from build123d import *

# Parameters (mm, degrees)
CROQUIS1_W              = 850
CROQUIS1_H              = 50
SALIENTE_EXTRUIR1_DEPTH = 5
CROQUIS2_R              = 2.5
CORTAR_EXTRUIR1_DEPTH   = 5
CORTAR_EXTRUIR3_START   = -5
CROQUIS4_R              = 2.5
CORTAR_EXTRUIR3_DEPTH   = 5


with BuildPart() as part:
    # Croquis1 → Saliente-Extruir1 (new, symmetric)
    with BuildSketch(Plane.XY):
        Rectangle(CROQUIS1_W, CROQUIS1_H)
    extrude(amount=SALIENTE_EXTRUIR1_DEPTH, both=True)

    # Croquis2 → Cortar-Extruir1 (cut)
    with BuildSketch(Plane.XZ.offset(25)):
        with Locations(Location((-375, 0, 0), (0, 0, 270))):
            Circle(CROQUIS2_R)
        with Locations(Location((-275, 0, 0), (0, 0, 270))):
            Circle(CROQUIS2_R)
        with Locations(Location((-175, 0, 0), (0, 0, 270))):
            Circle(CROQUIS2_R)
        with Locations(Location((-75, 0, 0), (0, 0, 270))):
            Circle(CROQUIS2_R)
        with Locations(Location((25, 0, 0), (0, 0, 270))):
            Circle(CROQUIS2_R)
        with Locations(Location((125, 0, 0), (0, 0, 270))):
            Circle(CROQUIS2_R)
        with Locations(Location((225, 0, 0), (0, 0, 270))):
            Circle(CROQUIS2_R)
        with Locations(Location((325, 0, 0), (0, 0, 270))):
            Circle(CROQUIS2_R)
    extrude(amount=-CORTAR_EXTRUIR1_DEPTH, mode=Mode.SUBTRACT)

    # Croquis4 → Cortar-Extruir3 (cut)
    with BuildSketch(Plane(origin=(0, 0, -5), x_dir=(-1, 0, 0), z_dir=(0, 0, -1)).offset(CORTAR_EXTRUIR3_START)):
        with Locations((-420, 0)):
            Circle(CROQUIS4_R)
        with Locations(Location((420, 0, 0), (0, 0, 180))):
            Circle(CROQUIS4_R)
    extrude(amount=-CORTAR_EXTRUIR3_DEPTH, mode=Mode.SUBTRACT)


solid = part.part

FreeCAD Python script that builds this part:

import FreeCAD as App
import Part
import Sketcher
from FreeCAD import Vector
Q = App.Units.Quantity

doc = App.newDocument("Part")
body = doc.addObject("PartDesign::Body", "Body")

sketch1 = body.newObject("Sketcher::SketchObject", "Sketch")
sketch1.AttachmentSupport = (doc.getObject("XY_Plane"), [""])
sketch1.MapMode = "FlatFace"
sketch1.addGeometry(Part.LineSegment(Vector(-425, 25, 0), Vector(-425, -25, 0)), False)
sketch1.addGeometry(Part.LineSegment(Vector(-425, -25, 0), Vector(425, -25, 0)), False)
sketch1.addGeometry(Part.LineSegment(Vector(425, -25, 0), Vector(425, 25, 0)), False)
sketch1.addGeometry(Part.LineSegment(Vector(425, 25, 0), Vector(-425, 25, 0)), False)
sketch1.addConstraint(Sketcher.Constraint("Coincident", 0, 2, 1, 1))
sketch1.addConstraint(Sketcher.Constraint("Coincident", 1, 2, 2, 1))
sketch1.addConstraint(Sketcher.Constraint("Coincident", 2, 2, 3, 1))
sketch1.addConstraint(Sketcher.Constraint("Coincident", 3, 2, 0, 1))
sketch1.addConstraint(Sketcher.Constraint("Vertical", 0))
sketch1.addConstraint(Sketcher.Constraint("Horizontal", 1))
sketch1.addConstraint(Sketcher.Constraint("Vertical", 2))
sketch1.addConstraint(Sketcher.Constraint("Horizontal", 3))
sketch1.addConstraint(Sketcher.Constraint("Symmetric", 0, 2, 2, 2, -1, 1))
sketch1.addConstraint(Sketcher.Constraint("DistanceX", 1, 1, 1, 2, Q("850 mm")))
sketch1.addConstraint(Sketcher.Constraint("DistanceY", 0, 2, 0, 1, Q("50 mm")))
pad1 = body.newObject("PartDesign::Pad", "Pad")
pad1.Profile = sketch1
pad1.Length = 10
pad1.Midplane = True

sketch2 = body.newObject("Sketcher::SketchObject", "Sketch001")
sketch2.AttachmentSupport = (doc.getObject("XZ_Plane"), [""])
sketch2.MapMode = "FlatFace"
sketch2.AttachmentOffset = App.Placement(Vector(0, 0, 25), App.Rotation())
sketch2.addGeometry(Part.Circle(Vector(-375, 0, 0), Vector(0, 0, 1), 2.5), False)
sketch2.addGeometry(Part.Circle(Vector(-275, 0, 0), Vector(0, 0, 1), 2.5), False)
sketch2.addGeometry(Part.Circle(Vector(-175, 0, 0), Vector(0, 0, 1), 2.5), False)
sketch2.addGeometry(Part.Circle(Vector(-75, 0, 0), Vector(0, 0, 1), 2.5), False)
sketch2.addGeometry(Part.Circle(Vector(25, 0, 0), Vector(0, 0, 1), 2.5), False)
sketch2.addGeometry(Part.Circle(Vector(125, 0, 0), Vector(0, 0, 1), 2.5), False)
sketch2.addGeometry(Part.Circle(Vector(225, 0, 0), Vector(0, 0, 1), 2.5), False)
sketch2.addGeometry(Part.Circle(Vector(325, 0, 0), Vector(0, 0, 1), 2.5), False)
sketch2.addConstraint(Sketcher.Constraint("Equal", 0, 1))
sketch2.addConstraint(Sketcher.Constraint("Equal", 1, 2))
sketch2.addConstraint(Sketcher.Constraint("Equal", 2, 3))
sketch2.addConstraint(Sketcher.Constraint("Equal", 3, 4))
sketch2.addConstraint(Sketcher.Constraint("Equal", 4, 5))
sketch2.addConstraint(Sketcher.Constraint("Equal", 5, 6))
sketch2.addConstraint(Sketcher.Constraint("Equal", 6, 7))
sketch2.addConstraint(Sketcher.Constraint("PointOnObject", 0, 3, -1))
sketch2.addConstraint(Sketcher.Constraint("PointOnObject", 1, 3, -1))
sketch2.addConstraint(Sketcher.Constraint("PointOnObject", 2, 3, -1))
sketch2.addConstraint(Sketcher.Constraint("PointOnObject", 3, 3, -1))
sketch2.addConstraint(Sketcher.Constraint("PointOnObject", 4, 3, -1))
sketch2.addConstraint(Sketcher.Constraint("PointOnObject", 5, 3, -1))
sketch2.addConstraint(Sketcher.Constraint("PointOnObject", 6, 3, -1))
sketch2.addConstraint(Sketcher.Constraint("PointOnObject", 7, 3, -1))
sketch2.addConstraint(Sketcher.Constraint("Diameter", 0, Q("5 mm")))
sketch2.addConstraint(Sketcher.Constraint("DistanceX", 0, 3, -1, 1, Q("375 mm")))
sketch2.addConstraint(Sketcher.Constraint("DistanceX", 1, 3, -1, 1, Q("275 mm")))
sketch2.addConstraint(Sketcher.Constraint("DistanceX", 2, 3, -1, 1, Q("175 mm")))
sketch2.addConstraint(Sketcher.Constraint("DistanceX", 3, 3, -1, 1, Q("75 mm")))
sketch2.addConstraint(Sketcher.Constraint("DistanceX", -1, 1, 4, 3, Q("25 mm")))
sketch2.addConstraint(Sketcher.Constraint("DistanceX", -1, 1, 5, 3, Q("125 mm")))
sketch2.addConstraint(Sketcher.Constraint("DistanceX", -1, 1, 6, 3, Q("225 mm")))
sketch2.addConstraint(Sketcher.Constraint("DistanceX", -1, 1, 7, 3, Q("325 mm")))
pocket1 = body.newObject("PartDesign::Pocket", "Pocket")
pocket1.Profile = sketch2
pocket1.Length = 5

sketch3 = body.newObject("Sketcher::SketchObject", "Sketch002")
sketch3.AttachmentSupport = (doc.getObject("XY_Plane"), [""])
sketch3.MapMode = "FlatFace"
sketch3.addGeometry(Part.Circle(Vector(420, 0, 0), Vector(0, 0, 1), 2.5), False)
sketch3.addGeometry(Part.Circle(Vector(-420, 0, 0), Vector(0, 0, 1), 2.5), False)
sketch3.addConstraint(Sketcher.Constraint("Equal", 0, 1))
sketch3.addConstraint(Sketcher.Constraint("Symmetric", 0, 3, 1, 3, -1, 1))
sketch3.addConstraint(Sketcher.Constraint("PointOnObject", 0, 3, -1))
sketch3.addConstraint(Sketcher.Constraint("Diameter", 0, Q("5 mm")))
sketch3.addConstraint(Sketcher.Constraint("DistanceX", -1, 1, 0, 3, Q("420 mm")))
pocket2 = body.newObject("PartDesign::Pocket", "Pocket001")
pocket2.Profile = sketch3
pocket2.Length = 5
pocket2.Reversed = True

doc.recompute()
